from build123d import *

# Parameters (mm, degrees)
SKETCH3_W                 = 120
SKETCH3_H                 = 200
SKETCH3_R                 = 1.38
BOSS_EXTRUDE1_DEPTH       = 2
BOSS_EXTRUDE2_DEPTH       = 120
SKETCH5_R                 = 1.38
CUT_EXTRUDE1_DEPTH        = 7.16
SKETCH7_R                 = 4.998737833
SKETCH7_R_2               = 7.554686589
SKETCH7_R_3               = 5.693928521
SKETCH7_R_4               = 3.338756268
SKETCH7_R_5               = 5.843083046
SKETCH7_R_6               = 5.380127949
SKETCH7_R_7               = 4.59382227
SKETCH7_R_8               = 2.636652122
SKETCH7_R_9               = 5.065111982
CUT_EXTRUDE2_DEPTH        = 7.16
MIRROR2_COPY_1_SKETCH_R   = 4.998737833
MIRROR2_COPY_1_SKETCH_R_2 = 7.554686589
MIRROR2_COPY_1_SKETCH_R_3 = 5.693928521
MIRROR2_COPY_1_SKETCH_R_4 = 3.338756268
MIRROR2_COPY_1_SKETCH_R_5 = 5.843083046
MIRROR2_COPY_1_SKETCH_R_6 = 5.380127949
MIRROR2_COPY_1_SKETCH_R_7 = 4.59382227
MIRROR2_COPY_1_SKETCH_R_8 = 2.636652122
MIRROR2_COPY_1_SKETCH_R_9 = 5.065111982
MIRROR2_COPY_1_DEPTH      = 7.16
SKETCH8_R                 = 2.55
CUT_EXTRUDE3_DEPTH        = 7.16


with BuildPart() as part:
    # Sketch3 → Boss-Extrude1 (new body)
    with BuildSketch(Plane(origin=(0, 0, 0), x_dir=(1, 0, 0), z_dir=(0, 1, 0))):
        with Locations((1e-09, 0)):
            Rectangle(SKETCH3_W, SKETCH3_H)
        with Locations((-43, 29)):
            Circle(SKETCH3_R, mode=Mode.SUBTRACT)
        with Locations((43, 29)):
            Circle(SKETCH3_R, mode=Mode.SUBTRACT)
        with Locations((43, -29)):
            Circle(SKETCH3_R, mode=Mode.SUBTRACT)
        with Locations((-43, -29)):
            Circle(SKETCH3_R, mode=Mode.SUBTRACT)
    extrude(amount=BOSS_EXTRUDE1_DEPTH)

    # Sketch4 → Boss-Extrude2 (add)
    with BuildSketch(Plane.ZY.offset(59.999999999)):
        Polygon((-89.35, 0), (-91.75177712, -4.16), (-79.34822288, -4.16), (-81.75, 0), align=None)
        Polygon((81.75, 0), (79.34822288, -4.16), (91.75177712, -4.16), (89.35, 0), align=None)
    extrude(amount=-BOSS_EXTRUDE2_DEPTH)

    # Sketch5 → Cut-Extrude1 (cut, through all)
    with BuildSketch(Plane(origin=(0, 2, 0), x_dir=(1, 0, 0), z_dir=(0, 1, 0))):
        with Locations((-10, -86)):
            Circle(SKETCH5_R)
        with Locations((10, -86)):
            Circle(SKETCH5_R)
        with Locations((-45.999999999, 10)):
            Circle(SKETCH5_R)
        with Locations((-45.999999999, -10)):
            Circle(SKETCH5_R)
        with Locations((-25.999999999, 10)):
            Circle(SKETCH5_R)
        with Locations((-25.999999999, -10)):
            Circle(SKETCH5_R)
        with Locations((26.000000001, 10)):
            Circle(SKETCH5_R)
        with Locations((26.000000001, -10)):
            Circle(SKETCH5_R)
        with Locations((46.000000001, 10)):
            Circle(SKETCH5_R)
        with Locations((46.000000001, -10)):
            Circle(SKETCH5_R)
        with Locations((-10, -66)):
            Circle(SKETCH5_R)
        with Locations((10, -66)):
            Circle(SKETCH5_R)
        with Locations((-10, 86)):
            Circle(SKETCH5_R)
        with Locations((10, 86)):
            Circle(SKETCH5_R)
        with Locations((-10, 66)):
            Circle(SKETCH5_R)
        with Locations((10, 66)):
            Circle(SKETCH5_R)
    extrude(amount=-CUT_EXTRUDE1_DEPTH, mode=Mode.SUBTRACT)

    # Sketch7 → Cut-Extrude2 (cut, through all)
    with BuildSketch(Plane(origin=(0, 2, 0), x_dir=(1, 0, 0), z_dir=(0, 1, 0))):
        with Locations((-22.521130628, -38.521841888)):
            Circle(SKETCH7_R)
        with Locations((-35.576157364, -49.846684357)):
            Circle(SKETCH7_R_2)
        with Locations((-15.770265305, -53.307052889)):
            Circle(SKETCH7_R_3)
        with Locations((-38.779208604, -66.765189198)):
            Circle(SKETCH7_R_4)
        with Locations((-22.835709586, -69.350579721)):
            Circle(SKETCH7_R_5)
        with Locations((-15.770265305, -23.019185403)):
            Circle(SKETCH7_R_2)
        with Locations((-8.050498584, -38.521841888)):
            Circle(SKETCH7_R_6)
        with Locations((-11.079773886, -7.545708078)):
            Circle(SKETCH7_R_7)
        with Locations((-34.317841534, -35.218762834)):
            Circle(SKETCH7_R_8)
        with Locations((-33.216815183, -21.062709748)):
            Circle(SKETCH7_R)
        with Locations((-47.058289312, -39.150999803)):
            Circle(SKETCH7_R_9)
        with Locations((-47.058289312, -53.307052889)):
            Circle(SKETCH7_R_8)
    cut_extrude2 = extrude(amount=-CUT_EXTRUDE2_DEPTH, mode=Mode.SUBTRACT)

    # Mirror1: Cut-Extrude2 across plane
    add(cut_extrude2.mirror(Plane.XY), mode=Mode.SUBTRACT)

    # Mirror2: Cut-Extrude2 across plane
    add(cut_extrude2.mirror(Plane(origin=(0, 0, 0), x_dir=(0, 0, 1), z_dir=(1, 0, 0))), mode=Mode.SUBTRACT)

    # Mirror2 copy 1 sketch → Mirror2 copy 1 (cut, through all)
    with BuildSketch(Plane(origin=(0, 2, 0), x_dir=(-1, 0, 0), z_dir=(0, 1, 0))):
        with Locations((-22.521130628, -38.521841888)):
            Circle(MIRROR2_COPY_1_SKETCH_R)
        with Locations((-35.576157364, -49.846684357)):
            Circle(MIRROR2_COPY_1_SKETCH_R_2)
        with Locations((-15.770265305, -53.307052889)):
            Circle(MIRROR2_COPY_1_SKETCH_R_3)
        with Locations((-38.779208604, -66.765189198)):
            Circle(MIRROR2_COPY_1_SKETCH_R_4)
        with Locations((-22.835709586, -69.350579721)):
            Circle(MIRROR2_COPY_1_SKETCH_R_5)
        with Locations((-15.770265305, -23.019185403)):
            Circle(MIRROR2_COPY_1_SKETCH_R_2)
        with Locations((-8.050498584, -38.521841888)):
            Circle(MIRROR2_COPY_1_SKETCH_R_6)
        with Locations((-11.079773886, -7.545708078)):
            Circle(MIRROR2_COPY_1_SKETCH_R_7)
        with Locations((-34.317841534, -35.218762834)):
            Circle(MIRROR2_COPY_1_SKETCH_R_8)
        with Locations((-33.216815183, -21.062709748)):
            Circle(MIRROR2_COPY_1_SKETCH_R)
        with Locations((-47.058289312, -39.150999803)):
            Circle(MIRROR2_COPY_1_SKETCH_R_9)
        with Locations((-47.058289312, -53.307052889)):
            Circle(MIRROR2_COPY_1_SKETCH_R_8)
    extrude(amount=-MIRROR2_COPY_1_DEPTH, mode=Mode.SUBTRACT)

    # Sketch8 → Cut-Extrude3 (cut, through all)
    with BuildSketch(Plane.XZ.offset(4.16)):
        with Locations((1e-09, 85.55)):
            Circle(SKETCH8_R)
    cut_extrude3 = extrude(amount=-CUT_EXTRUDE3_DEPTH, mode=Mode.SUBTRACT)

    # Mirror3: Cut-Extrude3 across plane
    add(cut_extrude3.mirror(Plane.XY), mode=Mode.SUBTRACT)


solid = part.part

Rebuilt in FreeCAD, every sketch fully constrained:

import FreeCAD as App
import Part
import Sketcher

V = App.Vector
Q = App.Units.Quantity

doc = App.newDocument("Part")
params = doc.addObject("Spreadsheet::Sheet", "Params")
for row, (alias, value) in enumerate([
    ("sketch1_diameter", "2.76 mm"),
    ("sketch1_width", "120 mm"),
    ("sketch1_height", "200 mm"),
    ("pad1_length", "2 mm"),
    ("sketch2_height", "7.6 mm"),
    ("pad2_length", "120 mm"),
    ("sketch3_diameter", "2.76 mm"),
    ("sketch6_diameter", "5.1 mm"),
], start=1):
    params.set(f"A{row}", alias)
    params.set(f"B{row}", "=" + value)
    params.setAlias(f"B{row}", alias)

body = doc.addObject("PartDesign::Body", "Body")

# Sketch on XZ plane
sketch1 = doc.addObject("Sketcher::SketchObject", "Sketch")
body.addObject(sketch1)
sketch1.AttachmentSupport = (doc.XZ_Plane, [""])
sketch1.MapMode = "FlatFace"
sketch1.addGeometry([
    Part.LineSegment(V(-60, -100, 0), V(-60, 100, 0)),  # 0
    Part.LineSegment(V(-60, 100, 0), V(60, 100, 0)),  # 1
    Part.LineSegment(V(60, 100, 0), V(60, -100, 0)),  # 2
    Part.LineSegment(V(60, -100, 0), V(-60, -100, 0)),  # 3
    Part.Circle(V(-43, 29, 0), V(0, 0, 1), 1.38),  # 4
    Part.Circle(V(43, 29, 0), V(0, 0, 1), 1.38),  # 5
    Part.Circle(V(-43, -29, 0), V(0, 0, 1), 1.38),  # 6
    Part.Circle(V(43, -29, 0), V(0, 0, 1), 1.38),  # 7
], False)
sketch1.addConstraint([
    Sketcher.Constraint("Coincident", 0, 2, 1, 1),
    Sketcher.Constraint("Coincident", 1, 2, 2, 1),
    Sketcher.Constraint("Coincident", 2, 2, 3, 1),
    Sketcher.Constraint("Coincident", 3, 2, 0, 1),
    Sketcher.Constraint("Vertical", 0),
    Sketcher.Constraint("Horizontal", 1),
    Sketcher.Constraint("Vertical", 2),
    Sketcher.Constraint("Horizontal", 3),
    Sketcher.Constraint("Equal", 4, 5),
    Sketcher.Constraint("Equal", 5, 6),
    Sketcher.Constraint("Equal", 6, 7),
    Sketcher.Constraint("Symmetric", 5, 3, 6, 3, -1, 1),
    Sketcher.Constraint("Symmetric", 4, 3, 7, 3, -1, 1),
    Sketcher.Constraint("Symmetric", 0, 2, 2, 2, -1, 1),
    Sketcher.Constraint("Symmetric", 4, 3, 5, 3, -2),
    Sketcher.Constraint("Diameter", 4, 2.76),
    Sketcher.Constraint("DistanceX", 1, 1, 1, 2, 120.0),
    Sketcher.Constraint("DistanceY", 0, 1, 0, 2, 200.0),
    Sketcher.Constraint("DistanceX", 4, 3, -1, 1, 43.0),
    Sketcher.Constraint("DistanceY", -1, 1, 4, 3, 29.0),
])
sketch1.setExpression("Constraints[15]", "Params.sketch1_diameter")
sketch1.setExpression("Constraints[16]", "Params.sketch1_width")
sketch1.setExpression("Constraints[17]", "Params.sketch1_height")
pad1 = doc.addObject("PartDesign::Pad", "Pad")
body.addObject(pad1)
pad1.Profile = sketch1
pad1.setExpression("Length", "Params.pad1_length")
pad1.Reversed = True

# Sketch on YZ plane
sketch2 = doc.addObject("Sketcher::SketchObject", "Sketch001")
body.addObject(sketch2)
sketch2.AttachmentSupport = (doc.YZ_Plane, [""])
sketch2.MapMode = "FlatFace"
sketch2.AttachmentOffset = App.Placement(V(0, 0, -60), App.Rotation())
sketch2.addGeometry([
    Part.LineSegment(V(0, -89.35, 0), V(-4.16, -91.751777, 0)),  # 0
    Part.LineSegment(V(-4.16, -91.751777, 0), V(-4.16, -79.348223, 0)),  # 1
    Part.LineSegment(V(-4.16, -79.348223, 0), V(0, -81.75, 0)),  # 2
    Part.LineSegment(V(0, -81.75, 0), V(0, -89.35, 0)),  # 3
    Part.LineSegment(V(0, 81.75, 0), V(-4.16, 79.348223, 0)),  # 4
    Part.LineSegment(V(-4.16, 79.348223, 0), V(-4.16, 91.751777, 0)),  # 5
    Part.LineSegment(V(-4.16, 91.751777, 0), V(0, 89.35, 0)),  # 6
    Part.LineSegment(V(0, 89.35, 0), V(0, 81.75, 0)),  # 7
], False)
sketch2.addConstraint([
    Sketcher.Constraint("Coincident", 0, 2, 1, 1),
    Sketcher.Constraint("Coincident", 1, 2, 2, 1),
    Sketcher.Constraint("Coincident", 2, 2, 3, 1),
    Sketcher.Constraint("Coincident", 3, 2, 0, 1),
    Sketcher.Constraint("Coincident", 4, 2, 5, 1),
    Sketcher.Constraint("Coincident", 5, 2, 6, 1),
    Sketcher.Constraint("Coincident", 6, 2, 7, 1),
    Sketcher.Constraint("Coincident", 7, 2, 4, 1),
    Sketcher.Constraint("Vertical", 1),
    Sketcher.Constraint("Vertical", 3),
    Sketcher.Constraint("Vertical", 5),
    Sketcher.Constraint("Vertical", 7),
    Sketcher.Constraint("Symmetric", 3, 2, 6, 2, -1, 1),
    Sketcher.Constraint("Symmetric", 1, 2, 4, 2, -1),
    Sketcher.Constraint("Symmetric", 2, 2, 7, 2, -1),
    Sketcher.Constraint("Parallel", 0, 4),
    Sketcher.Constraint("Parallel", 2, 6),
    Sketcher.Constraint("Angle", 0, Q("-150 deg")),
    Sketcher.Constraint("DistanceY", 3, 2, 3, 1, 7.6),
    Sketcher.Constraint("DistanceY", 0, 2, 4, 2, 171.1),
    Sketcher.Constraint("DistanceX", 0, 2, -1, 1, 4.16),
])
sketch2.setExpression("Constraints[18]", "Params.sketch2_height")
pad2 = doc.addObject("PartDesign::Pad", "Pad001")
body.addObject(pad2)
pad2.Profile = sketch2
pad2.setExpression("Length", "Params.pad2_length")

# Sketch on XZ plane
sketch3 = doc.addObject("Sketcher::SketchObject", "Sketch002")
body.addObject(sketch3)
sketch3.AttachmentSupport = (doc.XZ_Plane, [""])
sketch3.MapMode = "FlatFace"
sketch3.AttachmentOffset = App.Placement(V(0, 0, -2), App.Rotation())
sketch3.addGeometry([
    Part.Circle(V(-10, 86, 0), V(0, 0, 1), 1.38),  # 0
    Part.Circle(V(10, 86, 0), V(0, 0, 1), 1.38),  # 1
    Part.Circle(V(-46, -10, 0), V(0, 0, 1), 1.38),  # 2
    Part.Circle(V(-46, 10, 0), V(0, 0, 1), 1.38),  # 3
    Part.Circle(V(-26, -10, 0), V(0, 0, 1), 1.38),  # 4
    Part.Circle(V(-26, 10, 0), V(0, 0, 1), 1.38),  # 5
    Part.Circle(V(26, -10, 0), V(0, 0, 1), 1.38),  # 6
    Part.Circle(V(26, 10, 0), V(0, 0, 1), 1.38),  # 7
    Part.Circle(V(46, -10, 0), V(0, 0, 1), 1.38),  # 8
    Part.Circle(V(46, 10, 0), V(0, 0, 1), 1.38),  # 9
    Part.Circle(V(-10, 66, 0), V(0, 0, 1), 1.38),  # 10
    Part.Circle(V(10, 66, 0), V(0, 0, 1), 1.38),  # 11
    Part.Circle(V(-10, -86, 0), V(0, 0, 1), 1.38),  # 12
    Part.Circle(V(10, -86, 0), V(0, 0, 1), 1.38),  # 13
    Part.Circle(V(-10, -66, 0), V(0, 0, 1), 1.38),  # 14
    Part.Circle(V(10, -66, 0), V(0, 0, 1), 1.38),  # 15
], False)
sketch3.addConstraint([
    Sketcher.Constraint("Equal", 0, 1),
    Sketcher.Constraint("Equal", 1, 2),
    Sketcher.Constraint("Equal", 2, 3),
    Sketcher.Constraint("Equal", 3, 4),
    Sketcher.Constraint("Equal", 4, 5),
    Sketcher.Constraint("Equal", 5, 6),
    Sketcher.Constraint("Equal", 6, 7),
    Sketcher.Constraint("Equal", 7, 8),
    Sketcher.Constraint("Equal", 8, 9),
    Sketcher.Constraint("Equal", 9, 10),
    Sketcher.Constraint("Equal", 10, 11),
    Sketcher.Constraint("Equal", 11, 12),
    Sketcher.Constraint("Equal", 12, 13),
    Sketcher.Constraint("Equal", 13, 14),
    Sketcher.Constraint("Equal", 14, 15),
    Sketcher.Constraint("Symmetric", 5, 3, 6, 3, -1, 1),
    Sketcher.Constraint("Symmetric", 4, 3, 7, 3, -1, 1),
    Sketcher.Constraint("Symmetric", 3, 3, 8, 3, -1, 1),
    Sketcher.Constraint("Symmetric", 2, 3, 9, 3, -1, 1),
    Sketcher.Constraint("Symmetric", 1, 3, 12, 3, -1, 1),
    Sketcher.Constraint("Symmetric", 0, 3, 13, 3, -1, 1),
    Sketcher.Constraint("Symmetric", 11, 3, 14, 3, -1, 1),
    Sketcher.Constraint("Symmetric", 10, 3, 15, 3, -1, 1),
    Sketcher.Constraint("Symmetric", 0, 3, 1, 3, -2),
    Sketcher.Constraint("Symmetric", 4, 3, 6, 3, -2),
    Sketcher.Constraint("Symmetric", 2, 3, 8, 3, -2),
    Sketcher.Constraint("Symmetric", 10, 3, 11, 3, -2),
    Sketcher.Constraint("Horizontal", 2, 3, 4, 3),
    Sketcher.Constraint("Vertical", 0, 3, 10, 3),
    Sketcher.Constraint("Diameter", 0, 2.76),
    Sketcher.Constraint("DistanceX", 0, 3, -1, 1, 10.0),
    Sketcher.Constraint("DistanceY", -1, 1, 0, 3, 86.0),
    Sketcher.Constraint("DistanceX", 2, 3, -1, 1, 46.0),
    Sketcher.Constraint("DistanceY", 2, 3, -1, 1, 10.0),
    Sketcher.Constraint("DistanceX", 4, 3, -1, 1, 26.0),
    Sketcher.Constraint("DistanceY", -1, 1, 10, 3, 66.0),
])
sketch3.setExpression("Constraints[29]", "Params.sketch3_diameter")
pocket1 = doc.addObject("PartDesign::Pocket", "Pocket")
body.addObject(pocket1)
pocket1.Profile = sketch3
pocket1.Type = "ThroughAll"
pocket1.Reversed = True

# Sketch on XZ plane
sketch4 = doc.addObject("Sketcher::SketchObject", "Sketch003")
body.addObject(sketch4)
sketch4.AttachmentSupport = (doc.XZ_Plane, [""])
sketch4.MapMode = "FlatFace"
sketch4.AttachmentOffset = App.Placement(V(0, 0, -2), App.Rotation())
sketch4.addGeometry([
    Part.Circle(V(-22.521131, 38.521842, 0), V(0, 0, 1), 4.998738),  # 0
    Part.Circle(V(-35.576157, 49.846684, 0), V(0, 0, 1), 7.554687),  # 1
    Part.Circle(V(-15.770265, 53.307053, 0), V(0, 0, 1), 5.693929),  # 2
    Part.Circle(V(-38.779209, 66.765189, 0), V(0, 0, 1), 3.338756),  # 3
    Part.Circle(V(-22.83571, 69.35058, 0), V(0, 0, 1), 5.843083),  # 4
    Part.Circle(V(-15.770265, 23.019185, 0), V(0, 0, 1), 7.554687),  # 5
    Part.Circle(V(-8.050499, 38.521842, 0), V(0, 0, 1), 5.380128),  # 6
    Part.Circle(V(-11.079774, 7.545708, 0), V(0, 0, 1), 4.593822),  # 7
    Part.Circle(V(-34.317842, 35.218763, 0), V(0, 0, 1), 2.636652),  # 8
    Part.Circle(V(-33.216815, 21.06271, 0), V(0, 0, 1), 4.998738),  # 9
    Part.Circle(V(-47.058289, 39.151, 0), V(0, 0, 1), 5.065112),  # 10
    Part.Circle(V(-47.058289, 53.307053, 0), V(0, 0, 1), 2.636652),  # 11
], False)
sketch4.addConstraint([
    Sketcher.Constraint("Equal", 1, 5),
    Sketcher.Constraint("Equal", 0, 9),
    Sketcher.Constraint("Equal", 8, 11),
    Sketcher.Constraint("Horizontal", 0, 3, 6, 3),
    Sketcher.Constraint("Horizontal", 2, 3, 11, 3),
    Sketcher.Constraint("Vertical", 2, 3, 5, 3),
    Sketcher.Constraint("Vertical", 10, 3, 11, 3),
    Sketcher.Constraint("Diameter", 0, 9.997476),
    Sketcher.Constraint("Diameter", 1, 15.109373),
    Sketcher.Constraint("Diameter", 2, 11.387857),
    Sketcher.Constraint("Diameter", 3, 6.677513),
    Sketcher.Constraint("Diameter", 4, 11.686166),
    Sketcher.Constraint("Diameter", 6, 10.760256),
    Sketcher.Constraint("Diameter", 7, 9.187645),
    Sketcher.Constraint("Diameter", 8, 5.273304),
    Sketcher.Constraint("Diameter", 10, 10.130224),
    Sketcher.Constraint("DistanceY", -1, 1, 10, 3, 39.151),
    Sketcher.Constraint("DistanceY", 7, 3, 9, 3, 13.517002),
    Sketcher.Constraint("DistanceX", 6, 3, -1, 1, 8.050499),
    Sketcher.Constraint("DistanceX", 3, 3, 4, 3, 15.943499),
    Sketcher.Constraint("DistanceY", 5, 3, 1, 3, 26.827499),
    Sketcher.Constraint("DistanceX", 0, 3, -1, 1, 22.521131),
    Sketcher.Constraint("DistanceY", -1, 1, 0, 3, 38.521842),
    Sketcher.Constraint("DistanceX", 3, 3, -1, 1, 38.779209),
    Sketcher.Constraint("DistanceY", -1, 1, 3, 3, 66.765189),
    Sketcher.Constraint("DistanceY", -1, 1, 4, 3, 69.35058),
    Sketcher.Constraint("DistanceY", -1, 1, 7, 3, 7.545708),
    Sketcher.Constraint("DistanceX", 8, 3, -1, 1, 34.317842),
    Sketcher.Constraint("DistanceX", 10, 3, -1, 1, 47.058289),
    Sketcher.Constraint("DistanceY", 0, 3, 2, 3, 14.785211),
    Sketcher.Constraint("DistanceY", 1, 3, 2, 3, 3.460369),
    Sketcher.Constraint("DistanceX", 3, 3, 1, 3, 3.203051),
    Sketcher.Constraint("DistanceX", 5, 3, 7, 3, 4.690491),
    Sketcher.Constraint("DistanceY", 8, 3, 0, 3, 3.303079),
    Sketcher.Constraint("DistanceX", 9, 3, 5, 3, 17.44655),
    Sketcher.Constraint("DistanceX", 2, 3, -1, 1, 15.770265),
])
pocket2 = doc.addObject("PartDesign::Pocket", "Pocket001")
body.addObject(pocket2)
pocket2.Profile = sketch4
pocket2.Type = "ThroughAll"
pocket2.Reversed = True
doc.recompute()

mirrored = doc.addObject("PartDesign::Mirrored", "Mirrored")
body.addObject(mirrored)
mirrored.Originals = [pocket2]
mirrored.MirrorPlane = (doc.XY_Plane, [""])
body.Tip = mirrored
doc.recompute()

mirrored2 = doc.addObject("PartDesign::Mirrored", "Mirrored001")
body.addObject(mirrored2)
mirrored2.Originals = [pocket2]
mirrored2.MirrorPlane = (doc.YZ_Plane, [""])
body.Tip = mirrored2

# Sketch on XZ plane
sketch5 = doc.addObject("Sketcher::SketchObject", "Sketch004")
body.addObject(sketch5)
sketch5.AttachmentSupport = (doc.XZ_Plane, [""])
sketch5.MapMode = "FlatFace"
sketch5.AttachmentOffset = App.Placement(V(0, 0, -2), App.Rotation())
sketch5.addGeometry([
    Part.Circle(V(22.521131, -38.521842, 0), V(0, 0, 1), 4.998738),  # 0
    Part.Circle(V(35.576157, -49.846684, 0), V(0, 0, 1), 7.554687),  # 1
    Part.Circle(V(15.770265, -53.307053, 0), V(0, 0, 1), 5.693929),  # 2
    Part.Circle(V(38.779209, -66.765189, 0), V(0, 0, 1), 3.338756),  # 3
    Part.Circle(V(22.83571, -69.35058, 0), V(0, 0, 1), 5.843083),  # 4
    Part.Circle(V(15.770265, -23.019185, 0), V(0, 0, 1), 7.554687),  # 5
    Part.Circle(V(8.050499, -38.521842, 0), V(0, 0, 1), 5.380128),  # 6
    Part.Circle(V(11.079774, -7.545708, 0), V(0, 0, 1), 4.593822),  # 7
    Part.Circle(V(34.317842, -35.218763, 0), V(0, 0, 1), 2.636652),  # 8
    Part.Circle(V(33.216815, -21.06271, 0), V(0, 0, 1), 4.998738),  # 9
    Part.Circle(V(47.058289, -39.151, 0), V(0, 0, 1), 5.065112),  # 10
    Part.Circle(V(47.058289, -53.307053, 0), V(0, 0, 1), 2.636652),  # 11
], False)
sketch5.addConstraint([
    Sketcher.Constraint("Equal", 1, 5),
    Sketcher.Constraint("Equal", 0, 9),
    Sketcher.Constraint("Equal", 8, 11),
    Sketcher.Constraint("Horizontal", 0, 3, 6, 3),
    Sketcher.Constraint("Horizontal", 2, 3, 11, 3),
    Sketcher.Constraint("Vertical", 2, 3, 5, 3),
    Sketcher.Constraint("Vertical", 10, 3, 11, 3),
    Sketcher.Constraint("Diameter", 0, 9.997476),
    Sketcher.Constraint("Diameter", 1, 15.109373),
    Sketcher.Constraint("Diameter", 2, 11.387857),
    Sketcher.Constraint("Diameter", 3, 6.677513),
    Sketcher.Constraint("Diameter", 4, 11.686166),
    Sketcher.Constraint("Diameter", 6, 10.760256),
    Sketcher.Constraint("Diameter", 7, 9.187645),
    Sketcher.Constraint("Diameter", 8, 5.273304),
    Sketcher.Constraint("Diameter", 10, 10.130224),
    Sketcher.Constraint("DistanceY", 10, 3, -1, 1, 39.151),
    Sketcher.Constraint("DistanceY", 9, 3, 7, 3, 13.517002),
    Sketcher.Constraint("DistanceX", -1, 1, 6, 3, 8.050499),
    Sketcher.Constraint("DistanceX", 4, 3, 3, 3, 15.943499),
    Sketcher.Constraint("DistanceY", 1, 3, 5, 3, 26.827499),
    Sketcher.Constraint("DistanceX", -1, 1, 0, 3, 22.521131),
    Sketcher.Constraint("DistanceY", 0, 3, -1, 1, 38.521842),
    Sketcher.Constraint("DistanceX", -1, 1, 3, 3, 38.779209),
    Sketcher.Constraint("DistanceY", 3, 3, -1, 1, 66.765189),
    Sketcher.Constraint("DistanceY", 4, 3, -1, 1, 69.35058),
    Sketcher.Constraint("DistanceY", 7, 3, -1, 1, 7.545708),
    Sketcher.Constraint("DistanceX", -1, 1, 8, 3, 34.317842),
    Sketcher.Constraint("DistanceX", -1, 1, 10, 3, 47.058289),
    Sketcher.Constraint("DistanceY", 2, 3, 0, 3, 14.785211),
    Sketcher.Constraint("DistanceY", 2, 3, 1, 3, 3.460369),
    Sketcher.Constraint("DistanceX", 1, 3, 3, 3, 3.203051),
    Sketcher.Constraint("DistanceX", 7, 3, 5, 3, 4.690491),
    Sketcher.Constraint("DistanceY", 0, 3, 8, 3, 3.303079),
    Sketcher.Constraint("DistanceX", 5, 3, 9, 3, 17.44655),
    Sketcher.Constraint("DistanceX", -1, 1, 2, 3, 15.770265),
])
pocket3 = doc.addObject("PartDesign::Pocket", "Pocket002")
body.addObject(pocket3)
pocket3.Profile = sketch5
pocket3.Type = "ThroughAll"
pocket3.Reversed = True

# Sketch on XZ plane
sketch6 = doc.addObject("Sketcher::SketchObject", "Sketch005")
body.addObject(sketch6)
sketch6.AttachmentSupport = (doc.XZ_Plane, [""])
sketch6.MapMode = "FlatFace"
sketch6.AttachmentOffset = App.Placement(V(0, 0, 4.16), App.Rotation())
sketch6.addGeometry(Part.Circle(V(0, 85.55, 0), V(0, 0, 1), 2.55), False)
sketch6.addConstraint([
    Sketcher.Constraint("PointOnObject", 0, 3, -2),
    Sketcher.Constraint("Diameter", 0, 5.1),
    Sketcher.Constraint("DistanceY", -1, 1, 0, 3, 85.55),
])
sketch6.setExpression("Constraints[1]", "Params.sketch6_diameter")
pocket4 = doc.addObject("PartDesign::Pocket", "Pocket003")
body.addObject(pocket4)
pocket4.Profile = sketch6
pocket4.Type = "ThroughAll"
doc.recompute()

mirrored3 = doc.addObject("PartDesign::Mirrored", "Mirrored002")
body.addObject(mirrored3)
mirrored3.Originals = [pocket4]
mirrored3.MirrorPlane = (doc.XY_Plane, [""])
body.Tip = mirrored3

doc.recompute()
